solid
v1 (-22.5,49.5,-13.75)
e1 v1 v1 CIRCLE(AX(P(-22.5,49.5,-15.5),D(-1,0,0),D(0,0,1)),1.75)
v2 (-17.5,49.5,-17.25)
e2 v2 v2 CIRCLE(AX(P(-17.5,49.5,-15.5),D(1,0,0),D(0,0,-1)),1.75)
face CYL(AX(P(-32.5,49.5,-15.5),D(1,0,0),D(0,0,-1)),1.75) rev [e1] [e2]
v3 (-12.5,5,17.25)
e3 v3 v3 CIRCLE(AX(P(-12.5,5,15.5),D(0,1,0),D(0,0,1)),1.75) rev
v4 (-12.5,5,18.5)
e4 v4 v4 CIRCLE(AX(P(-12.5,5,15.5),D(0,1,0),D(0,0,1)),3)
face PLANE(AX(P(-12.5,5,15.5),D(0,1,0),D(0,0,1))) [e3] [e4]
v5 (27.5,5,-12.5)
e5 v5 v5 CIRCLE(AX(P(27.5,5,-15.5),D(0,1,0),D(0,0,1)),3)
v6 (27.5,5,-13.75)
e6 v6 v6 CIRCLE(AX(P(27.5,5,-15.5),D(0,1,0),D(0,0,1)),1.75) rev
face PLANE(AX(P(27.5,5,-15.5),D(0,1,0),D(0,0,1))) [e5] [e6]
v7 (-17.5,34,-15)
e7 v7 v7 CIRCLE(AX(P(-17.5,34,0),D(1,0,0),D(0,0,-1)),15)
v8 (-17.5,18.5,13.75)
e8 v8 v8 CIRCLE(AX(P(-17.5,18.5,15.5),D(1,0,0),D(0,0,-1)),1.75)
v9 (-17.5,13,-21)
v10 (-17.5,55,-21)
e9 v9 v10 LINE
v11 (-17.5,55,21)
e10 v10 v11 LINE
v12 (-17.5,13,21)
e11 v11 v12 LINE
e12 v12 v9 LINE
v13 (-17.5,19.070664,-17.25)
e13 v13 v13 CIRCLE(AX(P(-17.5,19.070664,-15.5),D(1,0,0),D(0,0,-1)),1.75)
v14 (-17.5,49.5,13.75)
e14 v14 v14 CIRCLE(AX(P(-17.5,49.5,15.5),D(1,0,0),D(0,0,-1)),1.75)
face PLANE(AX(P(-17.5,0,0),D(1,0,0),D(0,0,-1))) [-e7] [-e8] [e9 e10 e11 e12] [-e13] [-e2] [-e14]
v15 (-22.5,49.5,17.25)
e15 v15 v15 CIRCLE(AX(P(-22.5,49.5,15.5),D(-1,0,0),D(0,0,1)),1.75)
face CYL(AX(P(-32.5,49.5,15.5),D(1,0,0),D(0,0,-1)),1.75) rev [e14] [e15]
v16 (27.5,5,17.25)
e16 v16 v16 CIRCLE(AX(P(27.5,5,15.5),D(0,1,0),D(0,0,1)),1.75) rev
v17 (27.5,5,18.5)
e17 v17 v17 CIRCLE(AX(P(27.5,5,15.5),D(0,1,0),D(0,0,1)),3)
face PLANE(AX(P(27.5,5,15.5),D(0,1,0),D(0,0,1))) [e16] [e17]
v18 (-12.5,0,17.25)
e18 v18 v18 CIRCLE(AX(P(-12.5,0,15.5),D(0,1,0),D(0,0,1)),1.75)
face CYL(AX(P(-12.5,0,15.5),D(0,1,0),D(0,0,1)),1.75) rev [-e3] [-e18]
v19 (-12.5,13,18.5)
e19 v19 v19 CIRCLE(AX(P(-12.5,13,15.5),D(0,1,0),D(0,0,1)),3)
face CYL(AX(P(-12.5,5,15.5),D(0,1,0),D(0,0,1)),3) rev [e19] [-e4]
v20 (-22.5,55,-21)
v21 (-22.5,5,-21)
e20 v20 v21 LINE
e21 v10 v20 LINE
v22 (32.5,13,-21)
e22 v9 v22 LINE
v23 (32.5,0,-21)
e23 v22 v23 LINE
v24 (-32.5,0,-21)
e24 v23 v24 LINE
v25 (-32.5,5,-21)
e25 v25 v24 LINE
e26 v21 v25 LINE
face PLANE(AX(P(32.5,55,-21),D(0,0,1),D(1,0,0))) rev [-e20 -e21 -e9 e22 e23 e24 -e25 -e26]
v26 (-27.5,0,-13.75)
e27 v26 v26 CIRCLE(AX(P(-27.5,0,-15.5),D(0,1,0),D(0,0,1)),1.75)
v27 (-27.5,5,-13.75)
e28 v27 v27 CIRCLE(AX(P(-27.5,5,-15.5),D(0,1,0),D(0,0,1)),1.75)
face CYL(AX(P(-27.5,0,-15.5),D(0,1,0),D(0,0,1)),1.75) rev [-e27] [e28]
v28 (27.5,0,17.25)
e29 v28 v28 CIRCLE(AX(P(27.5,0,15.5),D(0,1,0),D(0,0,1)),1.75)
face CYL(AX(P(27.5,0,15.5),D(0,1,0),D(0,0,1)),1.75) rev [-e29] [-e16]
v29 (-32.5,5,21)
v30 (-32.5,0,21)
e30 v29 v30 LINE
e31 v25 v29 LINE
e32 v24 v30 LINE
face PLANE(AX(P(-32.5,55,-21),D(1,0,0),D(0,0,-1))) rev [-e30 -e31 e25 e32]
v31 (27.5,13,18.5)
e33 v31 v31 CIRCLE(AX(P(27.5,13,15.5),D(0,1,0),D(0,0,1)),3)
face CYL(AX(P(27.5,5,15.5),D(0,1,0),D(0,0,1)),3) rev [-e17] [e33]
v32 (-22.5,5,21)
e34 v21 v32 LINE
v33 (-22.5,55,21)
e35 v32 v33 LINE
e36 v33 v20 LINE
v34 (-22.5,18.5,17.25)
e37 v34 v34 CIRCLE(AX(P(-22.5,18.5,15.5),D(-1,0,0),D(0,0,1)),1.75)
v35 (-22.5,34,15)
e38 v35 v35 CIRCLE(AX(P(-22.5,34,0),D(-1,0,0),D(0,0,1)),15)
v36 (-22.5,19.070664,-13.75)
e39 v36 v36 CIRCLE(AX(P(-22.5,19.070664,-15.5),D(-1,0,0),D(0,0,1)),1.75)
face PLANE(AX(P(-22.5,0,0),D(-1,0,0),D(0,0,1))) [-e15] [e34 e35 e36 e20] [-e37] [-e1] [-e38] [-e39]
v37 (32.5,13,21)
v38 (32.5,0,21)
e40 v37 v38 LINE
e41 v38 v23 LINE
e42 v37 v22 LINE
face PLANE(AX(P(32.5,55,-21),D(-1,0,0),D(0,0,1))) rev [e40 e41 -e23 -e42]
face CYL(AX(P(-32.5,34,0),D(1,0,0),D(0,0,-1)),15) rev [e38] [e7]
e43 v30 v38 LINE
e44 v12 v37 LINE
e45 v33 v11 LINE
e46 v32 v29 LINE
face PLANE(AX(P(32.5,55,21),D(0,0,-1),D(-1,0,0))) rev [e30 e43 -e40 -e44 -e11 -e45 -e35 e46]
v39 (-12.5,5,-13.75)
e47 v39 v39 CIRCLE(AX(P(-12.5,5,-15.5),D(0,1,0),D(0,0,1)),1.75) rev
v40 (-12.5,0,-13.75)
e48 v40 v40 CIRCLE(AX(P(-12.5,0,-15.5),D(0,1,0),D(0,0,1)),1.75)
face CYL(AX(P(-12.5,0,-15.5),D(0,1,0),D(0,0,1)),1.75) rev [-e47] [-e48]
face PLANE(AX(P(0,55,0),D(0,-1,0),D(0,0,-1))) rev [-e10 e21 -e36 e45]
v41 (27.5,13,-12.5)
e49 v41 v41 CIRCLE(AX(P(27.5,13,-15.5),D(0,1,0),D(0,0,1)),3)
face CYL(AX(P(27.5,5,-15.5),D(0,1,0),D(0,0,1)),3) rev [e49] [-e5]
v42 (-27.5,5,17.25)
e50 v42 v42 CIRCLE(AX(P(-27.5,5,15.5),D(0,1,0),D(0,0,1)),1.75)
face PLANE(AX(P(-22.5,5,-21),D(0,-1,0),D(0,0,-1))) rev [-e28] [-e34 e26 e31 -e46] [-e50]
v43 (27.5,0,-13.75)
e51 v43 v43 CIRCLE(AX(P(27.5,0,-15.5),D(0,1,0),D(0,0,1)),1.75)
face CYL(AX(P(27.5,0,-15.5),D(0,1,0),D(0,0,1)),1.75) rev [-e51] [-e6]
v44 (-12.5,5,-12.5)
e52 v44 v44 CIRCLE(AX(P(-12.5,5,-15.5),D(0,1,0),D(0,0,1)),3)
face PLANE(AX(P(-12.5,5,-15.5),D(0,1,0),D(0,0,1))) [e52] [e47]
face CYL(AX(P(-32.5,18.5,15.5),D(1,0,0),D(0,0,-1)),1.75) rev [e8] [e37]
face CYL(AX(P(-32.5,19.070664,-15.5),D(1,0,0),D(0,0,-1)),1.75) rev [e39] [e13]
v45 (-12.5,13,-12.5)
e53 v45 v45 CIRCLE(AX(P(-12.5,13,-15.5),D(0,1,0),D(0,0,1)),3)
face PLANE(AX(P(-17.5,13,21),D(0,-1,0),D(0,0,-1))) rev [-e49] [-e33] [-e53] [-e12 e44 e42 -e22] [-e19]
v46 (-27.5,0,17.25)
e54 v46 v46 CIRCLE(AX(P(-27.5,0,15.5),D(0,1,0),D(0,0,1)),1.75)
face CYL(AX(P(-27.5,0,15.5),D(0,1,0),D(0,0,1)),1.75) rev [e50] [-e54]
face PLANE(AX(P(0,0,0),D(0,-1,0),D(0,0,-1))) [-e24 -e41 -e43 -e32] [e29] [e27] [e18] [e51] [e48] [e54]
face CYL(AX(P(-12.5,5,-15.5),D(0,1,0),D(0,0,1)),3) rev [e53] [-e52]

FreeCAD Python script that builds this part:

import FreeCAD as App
import Part
import Sketcher
from FreeCAD import Vector
Q = App.Units.Quantity


def add_polygon(sketch, points):
    """Adds a closed chain of lines whose ends are joined by coincident constraints."""
    first, n = sketch.GeometryCount, len(points)
    for a, b in zip(points, points[1:] + points[:1]):
        sketch.addGeometry(Part.LineSegment(App.Vector(*a, 0), App.Vector(*b, 0)), False)
    for i in range(n):
        sketch.addConstraint(Sketcher.Constraint("Coincident", first + i, 2, first + (i + 1) % n, 1))

doc = App.newDocument("Part")
body = doc.addObject("PartDesign::Body", "Body")

sketch1 = body.newObject("Sketcher::SketchObject", "Sketch")
sketch1.AttachmentSupport = (doc.getObject("XZ_Plane"), [""])
sketch1.MapMode = "FlatFace"
add_polygon(sketch1, [(-32, -21), (-32, 21), (32, 21), (32, -21)])
sketch1.addConstraint([
    Sketcher.Constraint("Vertical", 0),
    Sketcher.Constraint("Horizontal", 1),
    Sketcher.Constraint("Vertical", 2),
    Sketcher.Constraint("Horizontal", 3),
    Sketcher.Constraint("Symmetric", 0, 2, 2, 2, -1, 1),
    Sketcher.Constraint("DistanceX", 1, 1, 1, 2, Q("65 mm")),
    Sketcher.Constraint("DistanceY", 0, 1, 0, 2, Q("42 mm")),
])
pad1 = body.newObject("PartDesign::Pad", "Pad")
pad1.Profile = sketch1
pad1.Length = 55
pad1.Reversed = True

sketch2 = body.newObject("Sketcher::SketchObject", "Sketch001")
sketch2.AttachmentSupport = (doc.getObject("YZ_Plane"), [""])
sketch2.MapMode = "FlatFace"
sketch2.AttachmentOffset = App.Placement(Vector(0, 0, -32.5), App.Rotation())
add_polygon(sketch2, [(55, -21), (5, -21), (5, 21), (55, 21)])
sketch2.addConstraint([
    Sketcher.Constraint("Horizontal", 0),
    Sketcher.Constraint("Vertical", 1),
    Sketcher.Constraint("Horizontal", 2),
    Sketcher.Constraint("Vertical", 3),
    Sketcher.Constraint("DistanceX", 0, 2, 0, 1, Q("50 mm")),
    Sketcher.Constraint("DistanceY", 1, 1, 1, 2, Q("42 mm")),
    Sketcher.Constraint("DistanceX", -1, 1, 0, 2, Q("5 mm")),
    Sketcher.Constraint("DistanceY", 0, 2, -1, 1, Q("21 mm")),
])
pocket1 = body.newObject("PartDesign::Pocket", "Pocket")
pocket1.Profile = sketch2
pocket1.Length = 10
pocket1.Reversed = True

sketch3 = body.newObject("Sketcher::SketchObject", "Sketch002")
sketch3.AttachmentSupport = (doc.getObject("YZ_Plane"), [""])
sketch3.MapMode = "FlatFace"
sketch3.AttachmentOffset = App.Placement(Vector(0, 0, 32.5), App.Rotation())
add_polygon(sketch3, [(55, 21), (13, 21), (13, -21), (55, -21)])
sketch3.addConstraint([
    Sketcher.Constraint("Horizontal", 0),
    Sketcher.Constraint("Vertical", 1),
    Sketcher.Constraint("Horizontal", 2),
    Sketcher.Constraint("Vertical", 3),
    Sketcher.Constraint("Equal", 2, 1),
    Sketcher.Constraint("DistanceX", 0, 2, 0, 1, Q("42 mm")),
    Sketcher.Constraint("DistanceX", -1, 1, 0, 2, Q("13 mm")),
    Sketcher.Constraint("DistanceY", -1, 1, 0, 2, Q("21 mm")),
])
pocket2 = body.newObject("PartDesign::Pocket", "Pocket001")
pocket2.Profile = sketch3
pocket2.Length = 50

sketch4 = body.newObject("Sketcher::SketchObject", "Sketch003")
sketch4.AttachmentSupport = (doc.getObject("YZ_Plane"), [""])
sketch4.MapMode = "FlatFace"
sketch4.AttachmentOffset = App.Placement(Vector(0, 0, -17.5), App.Rotation())
sketch4.addGeometry([
    Part.Circle(Vector(49.5, 15.5, 0), Vector(0, 0, 1), 1.8),
    Part.Circle(Vector(49.5, -15.5, 0), Vector(0, 0, 1), 1.8),
    Part.Circle(Vector(19.1, -15.5, 0), Vector(0, 0, 1), 1.8),
    Part.Circle(Vector(18.5, 15.5, 0), Vector(0, 0, 1), 1.8),
], False)
sketch4.addConstraint([
    Sketcher.Constraint("Equal", 0, 1),
    Sketcher.Constraint("Equal", 1, 2),
    Sketcher.Constraint("Equal", 2, 3),
    Sketcher.Constraint("Symmetric", 0, 3, 1, 3, -1),
    Sketcher.Constraint("Horizontal", 1, 3, 2, 3),
    Sketcher.Constraint("Horizontal", 0, 3, 3, 3),
    Sketcher.Constraint("Diameter", 0, Q("3.5 mm")),
    Sketcher.Constraint("DistanceY", 1, 3, 0, 3, Q("31 mm")),
    Sketcher.Constraint("DistanceX", 3, 3, 0, 3, Q("31 mm")),
    Sketcher.Constraint("DistanceX", -1, 1, 0, 3, Q("49.5 mm")),
    Sketcher.Constraint("DistanceX", -1, 1, 2, 3, Q("19.070664 mm")),
])
pocket3 = body.newObject("PartDesign::Pocket", "Pocket002")
pocket3.Profile = sketch4
pocket3.Type = "ThroughAll"

sketch5 = body.newObject("Sketcher::SketchObject", "Sketch004")
sketch5.AttachmentSupport = (doc.getObject("XZ_Plane"), [""])
sketch5.MapMode = "FlatFace"
sketch5.AttachmentOffset = App.Placement(Vector(0, 0, -5), App.Rotation())
sketch5.addGeometry([
    Part.Circle(Vector(-27.5, -15.5, 0), Vector(0, 0, 1), 1.8),
    Part.Circle(Vector(-27.5, 15.5, 0), Vector(0, 0, 1), 1.8),
], False)
sketch5.addConstraint([
    Sketcher.Constraint("Equal", 0, 1),
    Sketcher.Constraint("Symmetric", 0, 3, 1, 3, -1),
    Sketcher.Constraint("Diameter", 0, Q("3.5 mm")),
    Sketcher.Constraint("DistanceY", 0, 3, 1, 3, Q("31 mm")),
    Sketcher.Constraint("DistanceX", 0, 3, -1, 1, Q("27.5 mm")),
])
pocket4 = body.newObject("PartDesign::Pocket", "Pocket003")
pocket4.Profile = sketch5
pocket4.Type = "ThroughAll"
pocket4.Reversed = True

sketch6 = body.newObject("Sketcher::SketchObject", "Sketch005")
sketch6.AttachmentSupport = (doc.getObject("XZ_Plane"), [""])
sketch6.MapMode = "FlatFace"
sketch6.AttachmentOffset = App.Placement(Vector(0, 0, -13), App.Rotation())
sketch6.addGeometry([
    Part.Circle(Vector(-12.5, -15.5, 0), Vector(0, 0, 1), 1.8),
    Part.Circle(Vector(27.5, -15.5, 0), Vector(0, 0, 1), 1.8),
    Part.Circle(Vector(27.5, 15.5, 0), Vector(0, 0, 1), 1.8),
    Part.Circle(Vector(-12.5, 15.5, 0), Vector(0, 0, 1), 1.8),
], False)
sketch6.addConstraint([
    Sketcher.Constraint("Equal", 0, 1),
    Sketcher.Constraint("Equal", 1, 2),
    Sketcher.Constraint("Equal", 2, 3),
    Sketcher.Constraint("Symmetric", 1, 3, 2, 3, -1),
    Sketcher.Constraint("Symmetric", 0, 3, 3, 3, -1),
    Sketcher.Constraint("Horizontal", 0, 3, 1, 3),
    Sketcher.Constraint("Diameter", 0, Q("3.5 mm")),
    Sketcher.Constraint("DistanceX", 0, 3, 1, 3, Q("40 mm")),
    Sketcher.Constraint("DistanceY", 1, 3, 2, 3, Q("31 mm")),
    Sketcher.Constraint("DistanceX", 0, 3, -1, 1, Q("12.5 mm")),
])
pocket5 = body.newObject("PartDesign::Pocket", "Pocket004")
pocket5.Profile = sketch6
pocket5.Type = "ThroughAll"
pocket5.Reversed = True

sketch7 = body.newObject("Sketcher::SketchObject", "Sketch006")
sketch7.AttachmentSupport = (doc.getObject("XZ_Plane"), [""])
sketch7.MapMode = "FlatFace"
sketch7.AttachmentOffset = App.Placement(Vector(0, 0, -13), App.Rotation())
sketch7.addGeometry([
    Part.Circle(Vector(-12.5, -15.5, 0), Vector(0, 0, 1), 3),
    Part.Circle(Vector(27.5, -15.5, 0), Vector(0, 0, 1), 3),
    Part.Circle(Vector(27.5, 15.5, 0), Vector(0, 0, 1), 3),
    Part.Circle(Vector(-12.5, 15.5, 0), Vector(0, 0, 1), 3),
], False)
sketch7.addConstraint([
    Sketcher.Constraint("Equal", 0, 1),
    Sketcher.Constraint("Equal", 1, 2),
    Sketcher.Constraint("Equal", 2, 3),
    Sketcher.Constraint("Symmetric", 1, 3, 2, 3, -1),
    Sketcher.Constraint("Symmetric", 0, 3, 3, 3, -1),
    Sketcher.Constraint("Horizontal", 0, 3, 1, 3),
    Sketcher.Constraint("Diameter", 0, Q("6 mm")),
    Sketcher.Constraint("DistanceX", 0, 3, 1, 3, Q("40 mm")),
    Sketcher.Constraint("DistanceY", 1, 3, 2, 3, Q("31 mm")),
    Sketcher.Constraint("DistanceX", 0, 3, -1, 1, Q("12.5 mm")),
])
pocket6 = body.newObject("PartDesign::Pocket", "Pocket005")
pocket6.Profile = sketch7
pocket6.Length = 8
pocket6.Reversed = True

sketch8 = body.newObject("Sketcher::SketchObject", "Sketch007")
sketch8.AttachmentSupport = (doc.getObject("YZ_Plane"), [""])
sketch8.MapMode = "FlatFace"
sketch8.AttachmentOffset = App.Placement(Vector(0, 0, -17.5), App.Rotation())
sketch8.addGeometry(Part.Circle(Vector(34, 0, 0), Vector(0, 0, 1), 15), False)
sketch8.addConstraint([
    Sketcher.Constraint("PointOnObject", 0, 3, -1),
    Sketcher.Constraint("Diameter", 0, Q("30 mm")),
    Sketcher.Constraint("DistanceX", -1, 1, 0, 3, Q("34 mm")),
])
pocket7 = body.newObject("PartDesign::Pocket", "Pocket006")
pocket7.Profile = sketch8
pocket7.Type = "ThroughAll"

doc.recompute()
